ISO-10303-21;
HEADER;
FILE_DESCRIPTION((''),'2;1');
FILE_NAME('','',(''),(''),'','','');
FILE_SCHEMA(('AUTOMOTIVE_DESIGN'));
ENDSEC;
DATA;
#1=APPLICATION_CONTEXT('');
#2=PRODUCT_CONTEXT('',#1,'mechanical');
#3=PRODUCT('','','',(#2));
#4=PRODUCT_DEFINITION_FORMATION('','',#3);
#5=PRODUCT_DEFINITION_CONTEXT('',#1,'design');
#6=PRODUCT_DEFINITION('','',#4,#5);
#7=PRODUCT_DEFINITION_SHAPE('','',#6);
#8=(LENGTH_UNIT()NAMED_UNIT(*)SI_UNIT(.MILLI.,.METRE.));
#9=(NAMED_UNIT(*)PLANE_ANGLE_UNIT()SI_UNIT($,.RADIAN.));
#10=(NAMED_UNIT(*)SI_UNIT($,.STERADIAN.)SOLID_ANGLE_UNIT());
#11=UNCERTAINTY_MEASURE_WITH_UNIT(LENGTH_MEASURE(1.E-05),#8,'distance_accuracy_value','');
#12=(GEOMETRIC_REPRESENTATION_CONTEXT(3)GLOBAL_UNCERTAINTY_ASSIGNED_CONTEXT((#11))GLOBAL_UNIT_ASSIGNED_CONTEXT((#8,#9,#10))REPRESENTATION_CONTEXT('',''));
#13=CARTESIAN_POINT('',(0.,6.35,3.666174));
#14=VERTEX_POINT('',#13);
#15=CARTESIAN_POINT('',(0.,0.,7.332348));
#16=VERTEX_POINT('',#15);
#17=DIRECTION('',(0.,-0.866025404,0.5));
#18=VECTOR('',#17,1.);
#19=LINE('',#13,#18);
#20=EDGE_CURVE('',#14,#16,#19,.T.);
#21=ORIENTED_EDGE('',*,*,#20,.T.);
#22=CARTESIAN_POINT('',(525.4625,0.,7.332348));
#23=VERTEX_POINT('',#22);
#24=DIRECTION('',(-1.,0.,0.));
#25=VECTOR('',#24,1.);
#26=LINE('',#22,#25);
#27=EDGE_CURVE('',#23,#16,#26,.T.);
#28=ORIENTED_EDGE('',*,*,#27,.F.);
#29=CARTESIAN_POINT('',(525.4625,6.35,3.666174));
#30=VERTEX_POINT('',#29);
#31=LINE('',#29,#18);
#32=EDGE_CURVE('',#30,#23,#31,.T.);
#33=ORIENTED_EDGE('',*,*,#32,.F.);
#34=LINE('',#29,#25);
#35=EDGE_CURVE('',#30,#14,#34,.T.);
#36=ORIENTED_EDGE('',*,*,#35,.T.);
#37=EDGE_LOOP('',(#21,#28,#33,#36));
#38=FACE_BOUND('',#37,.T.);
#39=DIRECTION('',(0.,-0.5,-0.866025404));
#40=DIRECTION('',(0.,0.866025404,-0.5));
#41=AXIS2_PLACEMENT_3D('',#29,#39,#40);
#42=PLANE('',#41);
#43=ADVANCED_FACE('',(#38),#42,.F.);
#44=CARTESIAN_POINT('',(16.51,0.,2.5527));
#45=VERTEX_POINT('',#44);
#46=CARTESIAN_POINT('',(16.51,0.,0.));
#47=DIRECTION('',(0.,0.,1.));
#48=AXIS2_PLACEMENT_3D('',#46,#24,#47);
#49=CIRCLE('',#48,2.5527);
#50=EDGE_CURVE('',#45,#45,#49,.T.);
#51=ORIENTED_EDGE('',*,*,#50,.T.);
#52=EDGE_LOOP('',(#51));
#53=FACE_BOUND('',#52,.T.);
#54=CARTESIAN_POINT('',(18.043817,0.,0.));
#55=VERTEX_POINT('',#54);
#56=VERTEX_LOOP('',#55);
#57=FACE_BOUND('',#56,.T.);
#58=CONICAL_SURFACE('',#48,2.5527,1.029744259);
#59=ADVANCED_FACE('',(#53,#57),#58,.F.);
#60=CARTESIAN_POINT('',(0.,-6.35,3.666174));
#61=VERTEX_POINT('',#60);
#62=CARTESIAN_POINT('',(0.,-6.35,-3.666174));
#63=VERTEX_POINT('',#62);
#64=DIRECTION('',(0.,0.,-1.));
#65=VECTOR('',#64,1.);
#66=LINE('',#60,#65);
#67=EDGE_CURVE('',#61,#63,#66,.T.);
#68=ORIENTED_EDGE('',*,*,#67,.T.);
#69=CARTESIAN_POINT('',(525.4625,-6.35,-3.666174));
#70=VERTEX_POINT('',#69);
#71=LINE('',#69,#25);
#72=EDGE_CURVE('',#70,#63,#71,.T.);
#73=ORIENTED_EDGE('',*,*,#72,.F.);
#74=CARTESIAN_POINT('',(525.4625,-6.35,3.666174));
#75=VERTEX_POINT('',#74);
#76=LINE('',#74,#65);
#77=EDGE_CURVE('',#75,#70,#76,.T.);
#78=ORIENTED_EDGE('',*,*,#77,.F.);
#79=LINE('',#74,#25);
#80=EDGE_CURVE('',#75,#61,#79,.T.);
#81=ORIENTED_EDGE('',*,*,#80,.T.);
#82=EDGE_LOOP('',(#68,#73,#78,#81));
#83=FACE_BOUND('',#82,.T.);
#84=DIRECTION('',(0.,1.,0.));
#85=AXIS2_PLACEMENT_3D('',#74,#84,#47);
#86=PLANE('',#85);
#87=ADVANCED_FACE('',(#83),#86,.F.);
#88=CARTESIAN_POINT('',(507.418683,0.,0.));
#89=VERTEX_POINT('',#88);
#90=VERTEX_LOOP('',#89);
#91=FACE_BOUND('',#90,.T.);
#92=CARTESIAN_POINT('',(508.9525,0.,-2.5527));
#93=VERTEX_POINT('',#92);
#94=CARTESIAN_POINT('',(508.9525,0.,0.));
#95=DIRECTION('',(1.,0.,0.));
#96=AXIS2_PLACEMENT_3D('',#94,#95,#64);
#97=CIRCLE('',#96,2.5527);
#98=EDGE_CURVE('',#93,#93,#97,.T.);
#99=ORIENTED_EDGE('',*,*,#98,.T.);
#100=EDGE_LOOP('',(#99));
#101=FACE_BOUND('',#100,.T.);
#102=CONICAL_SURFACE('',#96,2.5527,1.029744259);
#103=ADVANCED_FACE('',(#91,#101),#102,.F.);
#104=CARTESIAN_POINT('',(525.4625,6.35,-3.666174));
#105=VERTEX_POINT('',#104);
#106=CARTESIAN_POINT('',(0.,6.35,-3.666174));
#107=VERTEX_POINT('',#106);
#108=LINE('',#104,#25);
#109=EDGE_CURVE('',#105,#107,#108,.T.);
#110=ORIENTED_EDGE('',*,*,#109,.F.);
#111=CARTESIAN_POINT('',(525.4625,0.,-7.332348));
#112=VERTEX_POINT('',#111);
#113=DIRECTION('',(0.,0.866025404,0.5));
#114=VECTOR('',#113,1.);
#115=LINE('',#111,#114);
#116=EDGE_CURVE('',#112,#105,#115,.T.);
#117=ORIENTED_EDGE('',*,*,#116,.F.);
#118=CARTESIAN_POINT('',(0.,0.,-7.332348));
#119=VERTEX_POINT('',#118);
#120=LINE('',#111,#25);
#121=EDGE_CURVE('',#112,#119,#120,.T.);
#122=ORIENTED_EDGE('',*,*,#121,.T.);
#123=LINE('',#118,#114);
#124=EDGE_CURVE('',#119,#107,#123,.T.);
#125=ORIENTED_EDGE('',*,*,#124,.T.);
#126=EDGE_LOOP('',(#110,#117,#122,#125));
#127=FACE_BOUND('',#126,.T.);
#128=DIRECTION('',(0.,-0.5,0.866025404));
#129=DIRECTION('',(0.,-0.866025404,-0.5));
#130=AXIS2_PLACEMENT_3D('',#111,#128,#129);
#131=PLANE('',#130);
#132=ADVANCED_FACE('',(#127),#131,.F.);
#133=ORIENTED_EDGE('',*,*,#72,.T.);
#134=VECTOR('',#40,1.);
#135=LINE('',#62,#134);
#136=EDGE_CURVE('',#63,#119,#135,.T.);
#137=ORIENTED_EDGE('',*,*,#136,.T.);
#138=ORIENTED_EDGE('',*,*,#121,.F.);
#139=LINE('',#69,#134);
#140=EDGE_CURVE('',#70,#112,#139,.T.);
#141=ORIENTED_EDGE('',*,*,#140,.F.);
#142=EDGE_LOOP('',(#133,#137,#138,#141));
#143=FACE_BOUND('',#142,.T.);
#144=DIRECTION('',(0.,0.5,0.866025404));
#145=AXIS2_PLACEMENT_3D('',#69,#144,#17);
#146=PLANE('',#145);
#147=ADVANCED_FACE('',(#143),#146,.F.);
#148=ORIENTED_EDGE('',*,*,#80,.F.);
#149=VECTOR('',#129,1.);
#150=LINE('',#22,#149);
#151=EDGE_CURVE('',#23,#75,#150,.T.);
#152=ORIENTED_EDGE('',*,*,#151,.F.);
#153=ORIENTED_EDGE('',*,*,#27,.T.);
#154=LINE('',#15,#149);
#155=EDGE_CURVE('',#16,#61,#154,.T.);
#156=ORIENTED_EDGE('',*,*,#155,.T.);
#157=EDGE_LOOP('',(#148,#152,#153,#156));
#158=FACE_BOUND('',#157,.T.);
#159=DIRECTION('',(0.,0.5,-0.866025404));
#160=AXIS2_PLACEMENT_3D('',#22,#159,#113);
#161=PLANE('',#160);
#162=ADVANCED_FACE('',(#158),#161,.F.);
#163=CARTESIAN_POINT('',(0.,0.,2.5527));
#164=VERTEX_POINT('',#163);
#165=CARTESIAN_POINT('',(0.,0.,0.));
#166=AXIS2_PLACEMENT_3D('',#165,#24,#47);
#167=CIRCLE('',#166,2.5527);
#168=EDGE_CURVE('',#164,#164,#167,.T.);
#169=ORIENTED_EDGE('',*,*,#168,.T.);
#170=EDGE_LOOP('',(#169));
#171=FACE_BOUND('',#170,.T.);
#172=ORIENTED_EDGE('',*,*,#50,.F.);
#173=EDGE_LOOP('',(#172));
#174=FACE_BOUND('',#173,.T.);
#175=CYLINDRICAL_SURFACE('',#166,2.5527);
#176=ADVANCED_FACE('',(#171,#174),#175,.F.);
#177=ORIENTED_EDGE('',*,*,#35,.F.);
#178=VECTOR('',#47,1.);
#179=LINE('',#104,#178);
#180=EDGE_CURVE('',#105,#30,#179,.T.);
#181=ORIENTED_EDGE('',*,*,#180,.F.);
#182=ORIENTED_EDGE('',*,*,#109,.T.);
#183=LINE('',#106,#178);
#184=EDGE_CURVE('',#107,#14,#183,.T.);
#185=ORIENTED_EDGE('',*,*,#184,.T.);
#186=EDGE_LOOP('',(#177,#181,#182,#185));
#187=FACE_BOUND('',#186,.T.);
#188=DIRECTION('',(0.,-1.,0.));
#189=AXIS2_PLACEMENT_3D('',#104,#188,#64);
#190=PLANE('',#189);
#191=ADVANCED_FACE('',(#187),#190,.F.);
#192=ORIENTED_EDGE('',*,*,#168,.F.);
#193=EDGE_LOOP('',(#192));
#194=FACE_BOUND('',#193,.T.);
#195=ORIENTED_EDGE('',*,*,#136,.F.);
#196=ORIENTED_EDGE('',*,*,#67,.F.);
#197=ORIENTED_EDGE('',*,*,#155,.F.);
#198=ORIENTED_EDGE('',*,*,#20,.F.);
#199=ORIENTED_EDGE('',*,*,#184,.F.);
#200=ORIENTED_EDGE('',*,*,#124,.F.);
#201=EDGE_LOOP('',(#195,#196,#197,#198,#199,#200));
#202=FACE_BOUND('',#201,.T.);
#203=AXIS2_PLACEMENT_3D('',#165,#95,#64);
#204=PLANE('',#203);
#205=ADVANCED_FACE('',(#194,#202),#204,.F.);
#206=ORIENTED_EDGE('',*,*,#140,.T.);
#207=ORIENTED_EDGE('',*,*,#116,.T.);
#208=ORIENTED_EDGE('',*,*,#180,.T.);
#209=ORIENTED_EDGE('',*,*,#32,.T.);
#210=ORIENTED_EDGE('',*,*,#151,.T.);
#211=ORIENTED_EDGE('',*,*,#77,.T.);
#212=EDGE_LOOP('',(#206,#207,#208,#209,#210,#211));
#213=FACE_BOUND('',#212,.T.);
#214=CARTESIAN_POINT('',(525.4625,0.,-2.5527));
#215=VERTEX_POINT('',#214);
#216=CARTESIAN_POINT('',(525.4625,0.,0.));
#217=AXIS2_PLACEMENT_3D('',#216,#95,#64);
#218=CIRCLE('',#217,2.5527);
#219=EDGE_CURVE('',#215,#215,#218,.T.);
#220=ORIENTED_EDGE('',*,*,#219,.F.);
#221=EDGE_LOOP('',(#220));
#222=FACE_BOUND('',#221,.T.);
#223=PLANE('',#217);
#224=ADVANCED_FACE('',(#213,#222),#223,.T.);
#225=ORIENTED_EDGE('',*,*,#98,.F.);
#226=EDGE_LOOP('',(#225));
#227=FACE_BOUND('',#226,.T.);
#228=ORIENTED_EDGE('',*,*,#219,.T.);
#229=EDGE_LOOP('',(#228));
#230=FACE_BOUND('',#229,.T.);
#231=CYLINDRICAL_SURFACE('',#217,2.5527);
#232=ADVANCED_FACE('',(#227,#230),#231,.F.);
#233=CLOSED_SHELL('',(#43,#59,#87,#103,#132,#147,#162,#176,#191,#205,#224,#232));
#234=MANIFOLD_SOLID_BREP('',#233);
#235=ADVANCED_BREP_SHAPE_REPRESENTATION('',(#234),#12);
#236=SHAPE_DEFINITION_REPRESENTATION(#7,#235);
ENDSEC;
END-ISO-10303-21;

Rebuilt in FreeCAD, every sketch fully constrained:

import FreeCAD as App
import Part
import Sketcher
Q = App.Units.Quantity

doc = App.newDocument("Part")
params = doc.addObject("Spreadsheet::Sheet", "Params")
for row, (alias, value) in enumerate([
    ("pad1_length", "20.6875 in"),
    ("sketch2_diameter", "0.201 in"),
    ("hole_diameter", "0.201 in"),
    ("hole_depth", "0.65 in"),
    ("sketch3_diameter", "0.201 in"),
    ("hole2_diameter", "0.201 in"),
    ("hole2_depth", "0.65 in"),
], start=1):
    params.set(f"A{row}", alias)
    params.set(f"B{row}", "=" + value)
    params.setAlias(f"B{row}", alias)

body = doc.addObject("PartDesign::Body", "Body")

# Sketch on YZ plane
sketch1 = body.newObject("Sketcher::SketchObject", "Sketch")
sketch1.AttachmentSupport = (doc.getObject("YZ_Plane"), [""])
sketch1.MapMode = "FlatFace"
sketch1.addGeometry(Part.LineSegment(App.Vector(0, -7, 0), App.Vector(6, -4, 0)), False)
sketch1.addGeometry(Part.LineSegment(App.Vector(6, -4, 0), App.Vector(6, 4, 0)), False)
sketch1.addGeometry(Part.LineSegment(App.Vector(6, 4, 0), App.Vector(0, 7, 0)), False)
sketch1.addGeometry(Part.LineSegment(App.Vector(0, 7, 0), App.Vector(-6, 4, 0)), False)
sketch1.addGeometry(Part.LineSegment(App.Vector(-6, 4, 0), App.Vector(-6, -4, 0)), False)
sketch1.addGeometry(Part.LineSegment(App.Vector(-6, -4, 0), App.Vector(0, -7, 0)), False)
sketch1.addConstraint(Sketcher.Constraint("Coincident", 0, 2, 1, 1))
sketch1.addConstraint(Sketcher.Constraint("Coincident", 1, 2, 2, 1))
sketch1.addConstraint(Sketcher.Constraint("Coincident", 2, 2, 3, 1))
sketch1.addConstraint(Sketcher.Constraint("Coincident", 3, 2, 4, 1))
sketch1.addConstraint(Sketcher.Constraint("Coincident", 4, 2, 5, 1))
sketch1.addConstraint(Sketcher.Constraint("Coincident", 5, 2, 0, 1))
sketch1.addConstraint(Sketcher.Constraint("Vertical", 1))
sketch1.addConstraint(Sketcher.Constraint("Vertical", 4))
sketch1.addConstraint(Sketcher.Constraint("Symmetric", 0, 2, 3, 2, -1, 1))
sketch1.addConstraint(Sketcher.Constraint("Symmetric", 2, 2, 5, 2, -1, 1))
sketch1.addConstraint(Sketcher.Constraint("PointOnObject", 2, 2, -2))
sketch1.addConstraint(Sketcher.Constraint("Parallel", 2, 5))
sketch1.addConstraint(Sketcher.Constraint("Horizontal", 1, 2, 3, 2))
sketch1.addConstraint(Sketcher.Constraint("Angle", 0, Q("30 deg")))
sketch1.addConstraint(Sketcher.Constraint("DistanceX", 3, 2, 1, 2, Q("0.5 in")))
sketch1.addConstraint(Sketcher.Constraint("DistanceY", 1, 1, 1, 2, Q("7.332348 mm")))
pad1 = body.newObject("PartDesign::Pad", "Pad")
pad1.Profile = sketch1
pad1.setExpression("Length", "Params.pad1_length")

# Sketch on YZ plane
sketch2 = body.newObject("Sketcher::SketchObject", "Sketch001")
sketch2.AttachmentSupport = (doc.getObject("YZ_Plane"), [""])
sketch2.MapMode = "FlatFace"
sketch2.AttachmentOffset = App.Placement(App.Vector(0, 0, 20.6875 * 25.4), App.Rotation())
sketch2.addGeometry(Part.Circle(App.Vector(0, 0, 0), App.Vector(0, 0, 1), 2.6), False)
sketch2.addConstraint(Sketcher.Constraint("Coincident", 0, 3, -1, 1))
sketch2.addConstraint(Sketcher.Constraint("Diameter", 0, Q("0.201 in")))
sketch2.setExpression("Constraints[1]", "Params.sketch2_diameter")
doc.recompute()
hole = body.newObject("PartDesign::Hole", "Hole")
hole.Profile = sketch2
hole.ThreadType = "None"
hole.setExpression("Diameter", "Params.hole_diameter")
hole.DepthType = "Dimension"
hole.setExpression("Depth", "Params.hole_depth")
hole.DrillPoint = "Angled"
hole.DrillPointAngle = 118

# Sketch on YZ plane
sketch3 = body.newObject("Sketcher::SketchObject", "Sketch002")
sketch3.AttachmentSupport = (doc.getObject("YZ_Plane"), [""])
sketch3.MapMode = "FlatFace"
sketch3.addGeometry(Part.Circle(App.Vector(0, 0, 0), App.Vector(0, 0, 1), 2.6), False)
sketch3.addConstraint(Sketcher.Constraint("Coincident", 0, 3, -1, 1))
sketch3.addConstraint(Sketcher.Constraint("Diameter", 0, Q("0.201 in")))
sketch3.setExpression("Constraints[1]", "Params.sketch3_diameter")
doc.recompute()
hole2 = body.newObject("PartDesign::Hole", "Hole001")
hole2.Profile = sketch3
hole2.ThreadType = "None"
hole2.setExpression("Diameter", "Params.hole2_diameter")
hole2.DepthType = "Dimension"
hole2.setExpression("Depth", "Params.hole2_depth")
hole2.DrillPoint = "Angled"
hole2.DrillPointAngle = 118
hole2.Reversed = True

doc.recompute()
